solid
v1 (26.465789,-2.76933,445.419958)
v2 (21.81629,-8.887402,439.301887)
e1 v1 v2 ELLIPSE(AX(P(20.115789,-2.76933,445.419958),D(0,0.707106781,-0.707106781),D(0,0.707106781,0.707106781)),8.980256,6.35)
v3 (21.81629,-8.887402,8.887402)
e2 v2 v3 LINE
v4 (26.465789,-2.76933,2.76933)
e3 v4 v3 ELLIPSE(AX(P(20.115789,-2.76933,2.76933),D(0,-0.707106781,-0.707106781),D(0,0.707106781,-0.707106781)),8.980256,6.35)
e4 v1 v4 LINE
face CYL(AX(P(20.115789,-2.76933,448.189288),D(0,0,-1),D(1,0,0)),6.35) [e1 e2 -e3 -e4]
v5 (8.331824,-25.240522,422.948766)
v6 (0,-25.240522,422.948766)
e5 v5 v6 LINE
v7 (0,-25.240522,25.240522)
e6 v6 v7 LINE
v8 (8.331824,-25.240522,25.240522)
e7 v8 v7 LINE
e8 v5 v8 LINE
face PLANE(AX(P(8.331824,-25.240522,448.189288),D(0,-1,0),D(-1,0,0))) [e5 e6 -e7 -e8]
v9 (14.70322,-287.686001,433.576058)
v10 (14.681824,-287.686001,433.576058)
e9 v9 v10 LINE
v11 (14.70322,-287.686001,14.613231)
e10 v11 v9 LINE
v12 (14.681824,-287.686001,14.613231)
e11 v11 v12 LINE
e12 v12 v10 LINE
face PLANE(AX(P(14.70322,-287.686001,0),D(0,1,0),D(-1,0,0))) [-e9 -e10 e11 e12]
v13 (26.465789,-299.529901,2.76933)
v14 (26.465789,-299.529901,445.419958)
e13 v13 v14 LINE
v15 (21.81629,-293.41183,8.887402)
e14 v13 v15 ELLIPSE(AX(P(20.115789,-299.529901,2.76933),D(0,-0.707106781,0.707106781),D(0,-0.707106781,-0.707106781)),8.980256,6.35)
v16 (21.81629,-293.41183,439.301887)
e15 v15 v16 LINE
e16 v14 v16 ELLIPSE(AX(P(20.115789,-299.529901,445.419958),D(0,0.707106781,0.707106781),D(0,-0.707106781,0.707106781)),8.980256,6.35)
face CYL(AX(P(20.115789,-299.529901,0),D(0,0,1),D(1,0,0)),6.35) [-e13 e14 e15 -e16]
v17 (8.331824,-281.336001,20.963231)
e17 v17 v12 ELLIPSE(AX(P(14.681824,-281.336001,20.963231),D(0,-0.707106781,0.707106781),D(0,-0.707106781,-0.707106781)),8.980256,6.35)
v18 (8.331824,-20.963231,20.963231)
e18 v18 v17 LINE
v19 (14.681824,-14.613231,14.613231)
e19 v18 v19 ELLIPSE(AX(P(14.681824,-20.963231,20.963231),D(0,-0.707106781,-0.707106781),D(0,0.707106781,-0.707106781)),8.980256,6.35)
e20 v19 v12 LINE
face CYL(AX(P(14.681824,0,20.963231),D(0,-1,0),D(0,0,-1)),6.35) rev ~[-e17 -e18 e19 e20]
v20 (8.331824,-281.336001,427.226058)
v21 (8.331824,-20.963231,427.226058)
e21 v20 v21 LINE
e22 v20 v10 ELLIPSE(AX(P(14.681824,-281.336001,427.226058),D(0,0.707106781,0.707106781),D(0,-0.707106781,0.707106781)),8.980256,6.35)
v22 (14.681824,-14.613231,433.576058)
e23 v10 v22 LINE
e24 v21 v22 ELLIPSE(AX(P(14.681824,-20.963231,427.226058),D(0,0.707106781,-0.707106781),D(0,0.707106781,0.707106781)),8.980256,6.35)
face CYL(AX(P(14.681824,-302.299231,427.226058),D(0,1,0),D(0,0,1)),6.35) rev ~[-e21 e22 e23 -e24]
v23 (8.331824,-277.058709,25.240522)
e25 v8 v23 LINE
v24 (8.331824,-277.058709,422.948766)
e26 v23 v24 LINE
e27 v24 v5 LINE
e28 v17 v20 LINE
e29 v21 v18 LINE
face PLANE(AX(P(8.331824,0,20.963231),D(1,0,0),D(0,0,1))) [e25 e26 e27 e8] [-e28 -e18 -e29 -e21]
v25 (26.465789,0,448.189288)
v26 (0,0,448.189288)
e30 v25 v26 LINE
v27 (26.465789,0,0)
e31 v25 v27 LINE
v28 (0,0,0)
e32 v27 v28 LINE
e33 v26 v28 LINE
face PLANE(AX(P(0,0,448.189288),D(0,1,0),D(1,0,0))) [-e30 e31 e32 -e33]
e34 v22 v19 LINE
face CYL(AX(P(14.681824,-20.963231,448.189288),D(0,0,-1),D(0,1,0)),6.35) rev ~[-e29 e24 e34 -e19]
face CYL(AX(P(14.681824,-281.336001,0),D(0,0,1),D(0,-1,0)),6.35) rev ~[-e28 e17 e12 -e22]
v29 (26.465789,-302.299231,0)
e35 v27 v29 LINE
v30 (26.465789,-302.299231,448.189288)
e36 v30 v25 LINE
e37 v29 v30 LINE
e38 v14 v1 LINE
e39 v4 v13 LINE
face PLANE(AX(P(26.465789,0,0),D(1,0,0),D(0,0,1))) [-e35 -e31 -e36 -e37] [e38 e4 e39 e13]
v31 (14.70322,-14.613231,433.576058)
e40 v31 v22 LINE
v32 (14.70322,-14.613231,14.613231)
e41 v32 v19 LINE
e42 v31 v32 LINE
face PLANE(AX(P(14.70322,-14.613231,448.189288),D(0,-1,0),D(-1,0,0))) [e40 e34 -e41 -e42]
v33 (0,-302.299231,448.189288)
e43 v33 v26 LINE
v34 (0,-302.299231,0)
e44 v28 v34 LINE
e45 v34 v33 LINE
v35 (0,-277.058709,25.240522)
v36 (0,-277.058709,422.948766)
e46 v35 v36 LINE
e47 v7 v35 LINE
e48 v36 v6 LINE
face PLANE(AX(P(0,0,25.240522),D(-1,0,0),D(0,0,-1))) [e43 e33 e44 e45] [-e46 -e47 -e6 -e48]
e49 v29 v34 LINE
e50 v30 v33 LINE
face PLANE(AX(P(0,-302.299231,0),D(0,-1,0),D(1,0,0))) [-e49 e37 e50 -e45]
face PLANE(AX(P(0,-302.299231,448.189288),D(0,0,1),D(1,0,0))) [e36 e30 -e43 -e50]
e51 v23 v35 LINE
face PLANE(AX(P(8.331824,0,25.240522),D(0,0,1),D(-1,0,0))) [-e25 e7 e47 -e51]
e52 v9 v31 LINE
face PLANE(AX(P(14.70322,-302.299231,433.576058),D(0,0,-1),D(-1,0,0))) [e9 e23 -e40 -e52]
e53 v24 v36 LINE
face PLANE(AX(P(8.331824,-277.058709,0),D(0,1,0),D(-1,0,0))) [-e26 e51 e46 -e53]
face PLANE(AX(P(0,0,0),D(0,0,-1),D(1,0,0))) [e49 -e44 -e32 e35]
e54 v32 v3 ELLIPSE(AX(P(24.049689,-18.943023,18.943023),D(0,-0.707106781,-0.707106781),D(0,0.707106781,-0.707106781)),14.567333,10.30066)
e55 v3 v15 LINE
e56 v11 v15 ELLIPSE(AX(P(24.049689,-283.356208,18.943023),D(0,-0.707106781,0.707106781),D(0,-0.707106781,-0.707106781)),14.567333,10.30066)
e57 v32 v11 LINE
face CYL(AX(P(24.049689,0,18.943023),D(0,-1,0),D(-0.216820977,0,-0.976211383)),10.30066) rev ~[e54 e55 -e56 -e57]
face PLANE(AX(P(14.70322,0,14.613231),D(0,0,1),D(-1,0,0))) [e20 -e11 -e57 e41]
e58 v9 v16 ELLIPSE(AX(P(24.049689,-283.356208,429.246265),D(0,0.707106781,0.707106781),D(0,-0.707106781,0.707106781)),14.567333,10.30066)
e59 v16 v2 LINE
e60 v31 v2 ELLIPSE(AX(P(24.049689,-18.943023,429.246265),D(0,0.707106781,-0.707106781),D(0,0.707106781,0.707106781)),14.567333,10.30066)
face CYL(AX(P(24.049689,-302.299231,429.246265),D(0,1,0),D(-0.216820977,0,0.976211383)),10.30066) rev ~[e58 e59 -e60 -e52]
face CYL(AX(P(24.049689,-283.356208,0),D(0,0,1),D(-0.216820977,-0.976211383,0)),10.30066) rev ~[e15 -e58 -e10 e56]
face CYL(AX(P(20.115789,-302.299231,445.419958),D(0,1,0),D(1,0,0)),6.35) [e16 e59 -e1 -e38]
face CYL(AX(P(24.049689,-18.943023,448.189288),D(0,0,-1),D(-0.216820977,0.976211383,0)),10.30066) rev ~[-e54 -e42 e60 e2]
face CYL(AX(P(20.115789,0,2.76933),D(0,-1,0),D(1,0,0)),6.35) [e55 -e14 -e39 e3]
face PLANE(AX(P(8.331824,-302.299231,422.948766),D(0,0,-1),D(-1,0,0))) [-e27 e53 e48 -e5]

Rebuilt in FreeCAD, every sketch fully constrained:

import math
import FreeCAD as App
import Part
import Sketcher
Q = App.Units.Quantity

doc = App.newDocument("Part")
body = doc.addObject("PartDesign::Body", "Body")

sketch1 = doc.addObject("Sketcher::SketchObject", "Sketch")
body.addObject(sketch1)
sketch1.AttachmentSupport = (doc.XZ_Plane, [""])
sketch1.MapMode = "FlatFace"
sketch1.addGeometry([
    Part.LineSegment(App.Vector(0, 0, 0), App.Vector(26.466, 0, 0)),
    Part.LineSegment(App.Vector(26.466, 0, 0), App.Vector(26.466, 2.769, 0)),
    Part.ArcOfCircle(Part.Circle(App.Vector(20.116, 2.769, 0), App.Vector(0, 0, 1), 6.35), math.radians(0), math.radians(74)),
    Part.ArcOfCircle(Part.Circle(App.Vector(24.05, 18.943, 0), App.Vector(0, 0, 1), 10.301), math.radians(-155), math.radians(-103)),
    Part.LineSegment(App.Vector(14.703, 14.613, 0), App.Vector(14.682, 14.613, 0)),
    Part.ArcOfCircle(Part.Circle(App.Vector(14.682, 20.963, 0), App.Vector(0, 0, 1), 6.35), math.radians(180), math.radians(270)),
    Part.LineSegment(App.Vector(8.332, 20.963, 0), App.Vector(8.332, 25.241, 0)),
    Part.LineSegment(App.Vector(8.332, 25.241, 0), App.Vector(0, 25.241, 0)),
    Part.LineSegment(App.Vector(0, 25.241, 0), App.Vector(0, 0, 0)),
], False)
sketch1.addConstraint([
    Sketcher.Constraint("Coincident", 0, 2, 1, 1),
    Sketcher.Constraint("Tangent", 1, 2, 2, 1),
    Sketcher.Constraint("Coincident", 2, 2, 3, 2),
    Sketcher.Constraint("Coincident", 3, 1, 4, 1),
    Sketcher.Constraint("Tangent", 4, 2, 5, 2),
    Sketcher.Constraint("Tangent", 5, 1, 6, 1),
    Sketcher.Constraint("Coincident", 6, 2, 7, 1),
    Sketcher.Constraint("Coincident", 7, 2, 8, 1),
    Sketcher.Constraint("Coincident", 8, 2, 0, 1),
    Sketcher.Constraint("Horizontal", 0),
    Sketcher.Constraint("Vertical", 1),
    Sketcher.Constraint("Horizontal", 4),
    Sketcher.Constraint("Vertical", 6),
    Sketcher.Constraint("Horizontal", 7),
    Sketcher.Constraint("Vertical", 8),
    Sketcher.Constraint("Coincident", 8, 2, -1, 1),
    Sketcher.Constraint("Equal", 2, 5),
    Sketcher.Constraint("Radius", 2, Q("0.25 in")),
    Sketcher.Constraint("Radius", 3, Q("10.30066 mm")),
    Sketcher.Constraint("DistanceX", 0, 1, 0, 2, Q("26.465789 mm")),
    Sketcher.Constraint("DistanceY", 1, 1, 1, 2, Q("2.76933 mm")),
    Sketcher.Constraint("DistanceY", 6, 1, 6, 2, Q("4.277291 mm")),
    Sketcher.Constraint("DistanceY", 8, 2, 8, 1, Q("25.240522 mm")),
    Sketcher.Constraint("DistanceY", -1, 1, 2, 2, Q("8.887402 mm")),
    Sketcher.Constraint("DistanceX", 2, 3, 3, 3, Q("3.9339 mm")),
    Sketcher.Constraint("DistanceX", 4, 2, 4, 1, Q("0.021396 mm")),
])

sketch2 = doc.addObject("Sketcher::SketchObject", "Sketch001")
body.addObject(sketch2)
sketch2.AttachmentSupport = (doc.YZ_Plane, [""])
sketch2.MapMode = "FlatFace"
sketch2.addGeometry([
    Part.LineSegment(App.Vector(0, 0, 0), App.Vector(-302, 0, 0)),
    Part.LineSegment(App.Vector(-302, 0, 0), App.Vector(-302, 448, 0)),
    Part.LineSegment(App.Vector(-302, 448, 0), App.Vector(0, 448, 0)),
    Part.LineSegment(App.Vector(0, 448, 0), App.Vector(0, 0, 0)),
], False)
sketch2.addConstraint([
    Sketcher.Constraint("Coincident", 0, 2, 1, 1),
    Sketcher.Constraint("Coincident", 1, 2, 2, 1),
    Sketcher.Constraint("Coincident", 2, 2, 3, 1),
    Sketcher.Constraint("Coincident", 3, 2, 0, 1),
    Sketcher.Constraint("Horizontal", 0),
    Sketcher.Constraint("Vertical", 1),
    Sketcher.Constraint("Horizontal", 2),
    Sketcher.Constraint("Vertical", 3),
    Sketcher.Constraint("Coincident", 3, 2, -1, 1),
    Sketcher.Constraint("DistanceX", 0, 2, 0, 1, Q("302.299231 mm")),
    Sketcher.Constraint("DistanceY", 1, 1, 1, 2, Q("448.189288 mm")),
])
doc.recompute()

additivepipe = doc.addObject("PartDesign::AdditivePipe", "AdditivePipe")
body.addObject(additivepipe)
additivepipe.Profile = sketch1
additivepipe.Spine = (sketch2, ["Edge1", "Edge2", "Edge3", "Edge4"])
additivepipe.Transition = "Right corner"

doc.recompute()
